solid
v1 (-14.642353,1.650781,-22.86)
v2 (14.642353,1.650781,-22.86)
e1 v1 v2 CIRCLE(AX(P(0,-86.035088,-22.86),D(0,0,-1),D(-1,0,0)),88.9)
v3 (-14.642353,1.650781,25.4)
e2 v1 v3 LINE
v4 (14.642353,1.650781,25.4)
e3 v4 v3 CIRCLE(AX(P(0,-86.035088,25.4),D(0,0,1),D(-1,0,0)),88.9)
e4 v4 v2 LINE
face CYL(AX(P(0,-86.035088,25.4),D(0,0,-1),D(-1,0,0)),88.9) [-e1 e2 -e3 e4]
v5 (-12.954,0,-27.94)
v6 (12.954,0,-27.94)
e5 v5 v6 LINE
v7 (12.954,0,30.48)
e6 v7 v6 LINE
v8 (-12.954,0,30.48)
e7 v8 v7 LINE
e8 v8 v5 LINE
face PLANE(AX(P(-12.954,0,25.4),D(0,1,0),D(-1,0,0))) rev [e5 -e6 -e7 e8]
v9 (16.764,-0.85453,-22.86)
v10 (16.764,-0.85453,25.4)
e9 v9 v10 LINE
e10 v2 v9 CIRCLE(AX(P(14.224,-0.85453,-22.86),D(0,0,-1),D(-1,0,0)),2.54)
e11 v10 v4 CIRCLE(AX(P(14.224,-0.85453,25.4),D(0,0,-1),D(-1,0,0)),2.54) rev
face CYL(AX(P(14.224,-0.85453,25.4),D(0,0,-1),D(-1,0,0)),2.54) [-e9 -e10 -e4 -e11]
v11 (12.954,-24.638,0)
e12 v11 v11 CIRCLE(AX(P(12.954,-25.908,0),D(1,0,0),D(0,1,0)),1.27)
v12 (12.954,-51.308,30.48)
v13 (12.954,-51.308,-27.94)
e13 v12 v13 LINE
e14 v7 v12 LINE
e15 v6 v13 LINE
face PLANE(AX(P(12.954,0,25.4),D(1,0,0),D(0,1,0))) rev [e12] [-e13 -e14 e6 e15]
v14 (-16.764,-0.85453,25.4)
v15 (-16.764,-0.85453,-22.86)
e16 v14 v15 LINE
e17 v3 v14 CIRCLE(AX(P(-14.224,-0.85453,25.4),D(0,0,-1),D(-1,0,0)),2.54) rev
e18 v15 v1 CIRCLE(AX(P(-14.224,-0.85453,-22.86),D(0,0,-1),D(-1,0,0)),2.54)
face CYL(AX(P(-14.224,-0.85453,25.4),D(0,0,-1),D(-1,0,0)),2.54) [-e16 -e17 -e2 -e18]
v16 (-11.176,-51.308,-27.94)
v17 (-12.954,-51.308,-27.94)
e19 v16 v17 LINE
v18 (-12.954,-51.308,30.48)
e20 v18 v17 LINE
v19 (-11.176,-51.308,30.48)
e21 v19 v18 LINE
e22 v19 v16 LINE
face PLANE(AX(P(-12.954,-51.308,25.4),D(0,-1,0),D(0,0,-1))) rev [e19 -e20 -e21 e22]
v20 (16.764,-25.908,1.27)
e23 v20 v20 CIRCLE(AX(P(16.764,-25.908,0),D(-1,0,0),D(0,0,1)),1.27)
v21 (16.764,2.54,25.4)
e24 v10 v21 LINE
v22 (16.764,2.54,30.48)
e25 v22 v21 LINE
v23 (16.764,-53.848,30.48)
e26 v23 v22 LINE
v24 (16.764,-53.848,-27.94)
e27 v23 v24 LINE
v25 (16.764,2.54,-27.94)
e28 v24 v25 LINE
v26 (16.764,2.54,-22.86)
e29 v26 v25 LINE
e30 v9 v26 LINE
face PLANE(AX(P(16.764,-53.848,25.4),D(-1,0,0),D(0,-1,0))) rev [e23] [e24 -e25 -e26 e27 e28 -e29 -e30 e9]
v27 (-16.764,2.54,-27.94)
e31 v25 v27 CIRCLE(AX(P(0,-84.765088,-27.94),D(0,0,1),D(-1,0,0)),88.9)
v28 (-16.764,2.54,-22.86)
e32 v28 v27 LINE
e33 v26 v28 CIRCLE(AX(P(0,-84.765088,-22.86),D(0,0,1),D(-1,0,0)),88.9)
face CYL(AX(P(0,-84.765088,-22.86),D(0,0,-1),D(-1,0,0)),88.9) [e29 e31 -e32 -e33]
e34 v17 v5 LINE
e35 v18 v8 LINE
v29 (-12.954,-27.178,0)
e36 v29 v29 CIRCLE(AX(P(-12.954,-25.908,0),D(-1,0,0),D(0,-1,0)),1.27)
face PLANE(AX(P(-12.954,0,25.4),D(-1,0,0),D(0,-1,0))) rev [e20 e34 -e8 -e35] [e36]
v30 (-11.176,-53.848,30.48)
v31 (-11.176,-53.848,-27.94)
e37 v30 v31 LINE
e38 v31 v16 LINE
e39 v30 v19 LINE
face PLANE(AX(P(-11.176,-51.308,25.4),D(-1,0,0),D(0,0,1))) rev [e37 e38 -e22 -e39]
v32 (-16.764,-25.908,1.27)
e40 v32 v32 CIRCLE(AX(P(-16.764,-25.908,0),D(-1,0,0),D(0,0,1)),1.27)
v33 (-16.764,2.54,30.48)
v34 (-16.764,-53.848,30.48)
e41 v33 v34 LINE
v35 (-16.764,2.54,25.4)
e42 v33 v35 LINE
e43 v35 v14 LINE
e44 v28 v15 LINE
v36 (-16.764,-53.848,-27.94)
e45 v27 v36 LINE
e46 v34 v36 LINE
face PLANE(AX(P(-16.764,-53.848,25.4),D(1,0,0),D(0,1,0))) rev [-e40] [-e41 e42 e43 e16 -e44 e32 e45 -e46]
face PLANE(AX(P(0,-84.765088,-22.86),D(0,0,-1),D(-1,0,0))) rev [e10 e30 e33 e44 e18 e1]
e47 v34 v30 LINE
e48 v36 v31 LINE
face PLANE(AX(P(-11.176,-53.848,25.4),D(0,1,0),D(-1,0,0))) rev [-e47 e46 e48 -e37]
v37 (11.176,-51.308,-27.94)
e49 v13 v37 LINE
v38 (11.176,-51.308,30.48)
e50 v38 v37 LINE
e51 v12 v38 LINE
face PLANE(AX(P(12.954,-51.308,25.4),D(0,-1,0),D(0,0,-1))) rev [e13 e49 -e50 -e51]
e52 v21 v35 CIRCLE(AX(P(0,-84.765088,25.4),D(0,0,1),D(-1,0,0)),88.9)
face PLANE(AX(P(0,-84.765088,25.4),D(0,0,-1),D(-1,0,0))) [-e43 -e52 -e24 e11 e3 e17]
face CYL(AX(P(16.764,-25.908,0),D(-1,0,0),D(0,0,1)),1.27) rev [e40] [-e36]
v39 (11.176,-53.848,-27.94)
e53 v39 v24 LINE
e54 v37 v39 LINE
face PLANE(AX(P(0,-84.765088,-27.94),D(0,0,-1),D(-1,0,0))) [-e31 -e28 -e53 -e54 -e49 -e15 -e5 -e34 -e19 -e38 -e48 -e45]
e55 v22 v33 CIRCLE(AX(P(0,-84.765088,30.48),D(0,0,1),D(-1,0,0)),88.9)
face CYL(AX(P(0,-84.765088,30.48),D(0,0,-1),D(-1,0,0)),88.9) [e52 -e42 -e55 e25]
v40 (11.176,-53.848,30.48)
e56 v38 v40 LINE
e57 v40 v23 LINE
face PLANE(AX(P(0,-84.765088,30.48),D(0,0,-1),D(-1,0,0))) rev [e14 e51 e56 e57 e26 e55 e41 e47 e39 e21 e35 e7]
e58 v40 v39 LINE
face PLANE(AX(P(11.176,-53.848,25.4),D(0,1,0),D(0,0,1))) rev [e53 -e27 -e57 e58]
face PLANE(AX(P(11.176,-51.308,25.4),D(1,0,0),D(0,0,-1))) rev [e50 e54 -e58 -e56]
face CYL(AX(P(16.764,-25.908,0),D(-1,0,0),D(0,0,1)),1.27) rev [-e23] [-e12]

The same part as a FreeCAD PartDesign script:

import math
import FreeCAD as App
import Part
import Sketcher
Q = App.Units.Quantity


def edges_at(feature, points):
    """Names of the edges that pass closest to the given points."""
    edges = feature.Shape.Edges
    near = lambda p: min(range(len(edges)), key=lambda i: edges[i].distToShape(Part.Vertex(*p))[0])
    return sorted({f"Edge{near(p) + 1}" for p in points})

doc = App.newDocument("Part")
body = doc.addObject("PartDesign::Body", "Body")

# Sketch on XY plane
sketch1 = doc.addObject("Sketcher::SketchObject", "Sketch")
body.addObject(sketch1)
sketch1.AttachmentSupport = (doc.XY_Plane, [""])
sketch1.MapMode = "FlatFace"
sketch1.addGeometry([
    Part.LineSegment(App.Vector(-13, 0, 0), App.Vector(13, 0, 0)),  # 0
    Part.LineSegment(App.Vector(13, 0, 0), App.Vector(13, -51.3, 0)),  # 1
    Part.LineSegment(App.Vector(13, -51.3, 0), App.Vector(11.2, -51.3, 0)),  # 2
    Part.LineSegment(App.Vector(11.2, -51.3, 0), App.Vector(11.2, -53.8, 0)),  # 3
    Part.LineSegment(App.Vector(11.2, -53.8, 0), App.Vector(16.8, -53.8, 0)),  # 4
    Part.LineSegment(App.Vector(16.8, -53.8, 0), App.Vector(16.8, 1.3, 0)),  # 5
    Part.ArcOfCircle(Part.Circle(App.Vector(0, -86, 0), App.Vector(0, 0, 1), 88.9), math.radians(79), math.radians(101)),  # 6
    Part.LineSegment(App.Vector(-16.8, 1.3, 0), App.Vector(-16.8, -53.8, 0)),  # 7
    Part.LineSegment(App.Vector(-16.8, -53.8, 0), App.Vector(-11.2, -53.8, 0)),  # 8
    Part.LineSegment(App.Vector(-11.2, -53.8, 0), App.Vector(-11.2, -51.3, 0)),  # 9
    Part.LineSegment(App.Vector(-11.2, -51.3, 0), App.Vector(-13, -51.3, 0)),  # 10
    Part.LineSegment(App.Vector(-13, -51.3, 0), App.Vector(-13, 0, 0)),  # 11
], False)
sketch1.addConstraint([
    Sketcher.Constraint("Coincident", 0, 2, 1, 1),
    Sketcher.Constraint("Coincident", 1, 2, 2, 1),
    Sketcher.Constraint("Coincident", 2, 2, 3, 1),
    Sketcher.Constraint("Coincident", 3, 2, 4, 1),
    Sketcher.Constraint("Coincident", 4, 2, 5, 1),
    Sketcher.Constraint("Coincident", 5, 2, 6, 1),
    Sketcher.Constraint("Coincident", 6, 2, 7, 1),
    Sketcher.Constraint("Coincident", 7, 2, 8, 1),
    Sketcher.Constraint("Coincident", 8, 2, 9, 1),
    Sketcher.Constraint("Coincident", 9, 2, 10, 1),
    Sketcher.Constraint("Coincident", 10, 2, 11, 1),
    Sketcher.Constraint("Coincident", 11, 2, 0, 1),
    Sketcher.Constraint("Horizontal", 0),
    Sketcher.Constraint("Vertical", 1),
    Sketcher.Constraint("Horizontal", 2),
    Sketcher.Constraint("Vertical", 3),
    Sketcher.Constraint("Horizontal", 4),
    Sketcher.Constraint("Vertical", 5),
    Sketcher.Constraint("Vertical", 7),
    Sketcher.Constraint("Horizontal", 8),
    Sketcher.Constraint("Vertical", 9),
    Sketcher.Constraint("Horizontal", 10),
    Sketcher.Constraint("Vertical", 11),
    Sketcher.Constraint("Symmetric", 0, 2, 11, 2, -1, 1),
    Sketcher.Constraint("Symmetric", 5, 2, 6, 2, -2),
    Sketcher.Constraint("Symmetric", 3, 2, 8, 2, -2),
    Sketcher.Constraint("Horizontal", 2, 2, 9, 2),
    Sketcher.Constraint("Radius", 6, Q("3.5 in")),
    Sketcher.Constraint("DistanceY", 3, 2, 3, 1, Q("0.1 in")),
    Sketcher.Constraint("DistanceX", 0, 1, 0, 2, Q("1.02 in")),
    Sketcher.Constraint("DistanceX", 2, 2, 2, 1, Q("0.07 in")),
    Sketcher.Constraint("DistanceX", 4, 1, 4, 2, Q("0.22 in")),
    Sketcher.Constraint("DistanceY", 1, 2, 1, 1, Q("2.02 in")),
    Sketcher.Constraint("DistanceY", 5, 1, 5, 2, Q("2.17 in")),
])
pad1 = doc.addObject("PartDesign::Pad", "Pad")
body.addObject(pad1)
pad1.Profile = sketch1
pad1.Length = Q("2 in")
pad1.Midplane = True

# Sketch on XY plane
sketch2 = doc.addObject("Sketcher::SketchObject", "Sketch001")
body.addObject(sketch2)
sketch2.AttachmentSupport = (doc.XY_Plane, [""])
sketch2.MapMode = "FlatFace"
sketch2.AttachmentOffset = App.Placement(App.Vector(0, 0, 1 * 25.4), App.Rotation())
sketch2.addGeometry([
    Part.LineSegment(App.Vector(16.8, -53.8, 0), App.Vector(16.8, 2.5, 0)),  # 0
    Part.ArcOfCircle(Part.Circle(App.Vector(0, -84.8, 0), App.Vector(0, 0, 1), 88.9), math.radians(79), math.radians(101)),  # 1
    Part.LineSegment(App.Vector(-16.8, 2.5, 0), App.Vector(-16.8, -53.8, 0)),  # 2
    Part.LineSegment(App.Vector(-16.8, -53.8, 0), App.Vector(-11.2, -53.8, 0)),  # 3
    Part.LineSegment(App.Vector(-11.2, -53.8, 0), App.Vector(-11.2, -51.3, 0)),  # 4
    Part.LineSegment(App.Vector(-11.2, -51.3, 0), App.Vector(-13, -51.3, 0)),  # 5
    Part.LineSegment(App.Vector(-13, -51.3, 0), App.Vector(-13, 0, 0)),  # 6
    Part.LineSegment(App.Vector(-13, 0, 0), App.Vector(13, 0, 0)),  # 7
    Part.LineSegment(App.Vector(13, 0, 0), App.Vector(13, -51.3, 0)),  # 8
    Part.LineSegment(App.Vector(13, -51.3, 0), App.Vector(11.2, -51.3, 0)),  # 9
    Part.LineSegment(App.Vector(11.2, -51.3, 0), App.Vector(11.2, -53.8, 0)),  # 10
    Part.LineSegment(App.Vector(11.2, -53.8, 0), App.Vector(16.8, -53.8, 0)),  # 11
], False)
sketch2.addConstraint([
    Sketcher.Constraint("Coincident", 0, 2, 1, 1),
    Sketcher.Constraint("Coincident", 1, 2, 2, 1),
    Sketcher.Constraint("Coincident", 2, 2, 3, 1),
    Sketcher.Constraint("Coincident", 3, 2, 4, 1),
    Sketcher.Constraint("Coincident", 4, 2, 5, 1),
    Sketcher.Constraint("Coincident", 5, 2, 6, 1),
    Sketcher.Constraint("Coincident", 6, 2, 7, 1),
    Sketcher.Constraint("Coincident", 7, 2, 8, 1),
    Sketcher.Constraint("Coincident", 8, 2, 9, 1),
    Sketcher.Constraint("Coincident", 9, 2, 10, 1),
    Sketcher.Constraint("Coincident", 10, 2, 11, 1),
    Sketcher.Constraint("Coincident", 11, 2, 0, 1),
    Sketcher.Constraint("Vertical", 0),
    Sketcher.Constraint("Vertical", 2),
    Sketcher.Constraint("Horizontal", 3),
    Sketcher.Constraint("Vertical", 4),
    Sketcher.Constraint("Horizontal", 5),
    Sketcher.Constraint("Vertical", 6),
    Sketcher.Constraint("Horizontal", 7),
    Sketcher.Constraint("Vertical", 8),
    Sketcher.Constraint("Horizontal", 9),
    Sketcher.Constraint("Vertical", 10),
    Sketcher.Constraint("Horizontal", 11),
    Sketcher.Constraint("Symmetric", 6, 2, 7, 2, -1, 1),
    Sketcher.Constraint("Symmetric", 0, 2, 1, 2, -2),
    Sketcher.Constraint("Symmetric", 4, 2, 9, 2, -2),
    Sketcher.Constraint("Horizontal", 3, 2, 10, 2),
    Sketcher.Constraint("Radius", 1, Q("3.5 in")),
    Sketcher.Constraint("DistanceY", 4, 1, 4, 2, Q("0.1 in")),
    Sketcher.Constraint("DistanceX", 3, 1, 3, 2, Q("0.22 in")),
    Sketcher.Constraint("DistanceX", 5, 2, 5, 1, Q("0.07 in")),
    Sketcher.Constraint("DistanceX", 7, 1, 7, 2, Q("1.02 in")),
    Sketcher.Constraint("DistanceY", 0, 1, 0, 2, Q("2.22 in")),
    Sketcher.Constraint("DistanceY", 6, 1, 6, 2, Q("2.02 in")),
])
pad2 = doc.addObject("PartDesign::Pad", "Pad001")
body.addObject(pad2)
pad2.Profile = sketch2
pad2.Length = Q("0.2 in")
doc.recompute()

linearpattern = doc.addObject("PartDesign::LinearPattern", "LinearPattern")
body.addObject(linearpattern)
linearpattern.Originals = [pad2]
linearpattern.Direction = (doc.Z_Axis, [""])
linearpattern.Mode = "offset"
linearpattern.Offset = Q("2.1 in")
linearpattern.Occurrences = 2
linearpattern.Reversed = True
body.Tip = linearpattern
doc.recompute()

fillet = doc.addObject("PartDesign::Fillet", "Fillet")
body.addObject(fillet)
fillet.Base = (linearpattern, edges_at(linearpattern, [(-16.764, 1.27, 1.27), (16.764, 1.27, 1.27)]))
fillet.Radius = Q("0.1 in")

# Sketch on YZ plane
sketch3 = doc.addObject("Sketcher::SketchObject", "Sketch002")
body.addObject(sketch3)
sketch3.AttachmentSupport = (doc.YZ_Plane, [""])
sketch3.MapMode = "FlatFace"
sketch3.AttachmentOffset = App.Placement(App.Vector(0, 0, -0.66 * 25.4), App.Rotation())
sketch3.addGeometry(Part.Circle(App.Vector(-25.9, 0, 0), App.Vector(0, 0, 1), 1.3), False)
sketch3.addConstraint([
    Sketcher.Constraint("PointOnObject", 0, 3, -1),
    Sketcher.Constraint("Diameter", 0, Q("0.1 in")),
    Sketcher.Constraint("DistanceX", 0, 3, -1, 1, Q("1.02 in")),
])
pocket1 = doc.addObject("PartDesign::Pocket", "Pocket")
body.addObject(pocket1)
pocket1.Profile = sketch3
pocket1.Type = "ThroughAll"
pocket1.Reversed = True

doc.recompute()
